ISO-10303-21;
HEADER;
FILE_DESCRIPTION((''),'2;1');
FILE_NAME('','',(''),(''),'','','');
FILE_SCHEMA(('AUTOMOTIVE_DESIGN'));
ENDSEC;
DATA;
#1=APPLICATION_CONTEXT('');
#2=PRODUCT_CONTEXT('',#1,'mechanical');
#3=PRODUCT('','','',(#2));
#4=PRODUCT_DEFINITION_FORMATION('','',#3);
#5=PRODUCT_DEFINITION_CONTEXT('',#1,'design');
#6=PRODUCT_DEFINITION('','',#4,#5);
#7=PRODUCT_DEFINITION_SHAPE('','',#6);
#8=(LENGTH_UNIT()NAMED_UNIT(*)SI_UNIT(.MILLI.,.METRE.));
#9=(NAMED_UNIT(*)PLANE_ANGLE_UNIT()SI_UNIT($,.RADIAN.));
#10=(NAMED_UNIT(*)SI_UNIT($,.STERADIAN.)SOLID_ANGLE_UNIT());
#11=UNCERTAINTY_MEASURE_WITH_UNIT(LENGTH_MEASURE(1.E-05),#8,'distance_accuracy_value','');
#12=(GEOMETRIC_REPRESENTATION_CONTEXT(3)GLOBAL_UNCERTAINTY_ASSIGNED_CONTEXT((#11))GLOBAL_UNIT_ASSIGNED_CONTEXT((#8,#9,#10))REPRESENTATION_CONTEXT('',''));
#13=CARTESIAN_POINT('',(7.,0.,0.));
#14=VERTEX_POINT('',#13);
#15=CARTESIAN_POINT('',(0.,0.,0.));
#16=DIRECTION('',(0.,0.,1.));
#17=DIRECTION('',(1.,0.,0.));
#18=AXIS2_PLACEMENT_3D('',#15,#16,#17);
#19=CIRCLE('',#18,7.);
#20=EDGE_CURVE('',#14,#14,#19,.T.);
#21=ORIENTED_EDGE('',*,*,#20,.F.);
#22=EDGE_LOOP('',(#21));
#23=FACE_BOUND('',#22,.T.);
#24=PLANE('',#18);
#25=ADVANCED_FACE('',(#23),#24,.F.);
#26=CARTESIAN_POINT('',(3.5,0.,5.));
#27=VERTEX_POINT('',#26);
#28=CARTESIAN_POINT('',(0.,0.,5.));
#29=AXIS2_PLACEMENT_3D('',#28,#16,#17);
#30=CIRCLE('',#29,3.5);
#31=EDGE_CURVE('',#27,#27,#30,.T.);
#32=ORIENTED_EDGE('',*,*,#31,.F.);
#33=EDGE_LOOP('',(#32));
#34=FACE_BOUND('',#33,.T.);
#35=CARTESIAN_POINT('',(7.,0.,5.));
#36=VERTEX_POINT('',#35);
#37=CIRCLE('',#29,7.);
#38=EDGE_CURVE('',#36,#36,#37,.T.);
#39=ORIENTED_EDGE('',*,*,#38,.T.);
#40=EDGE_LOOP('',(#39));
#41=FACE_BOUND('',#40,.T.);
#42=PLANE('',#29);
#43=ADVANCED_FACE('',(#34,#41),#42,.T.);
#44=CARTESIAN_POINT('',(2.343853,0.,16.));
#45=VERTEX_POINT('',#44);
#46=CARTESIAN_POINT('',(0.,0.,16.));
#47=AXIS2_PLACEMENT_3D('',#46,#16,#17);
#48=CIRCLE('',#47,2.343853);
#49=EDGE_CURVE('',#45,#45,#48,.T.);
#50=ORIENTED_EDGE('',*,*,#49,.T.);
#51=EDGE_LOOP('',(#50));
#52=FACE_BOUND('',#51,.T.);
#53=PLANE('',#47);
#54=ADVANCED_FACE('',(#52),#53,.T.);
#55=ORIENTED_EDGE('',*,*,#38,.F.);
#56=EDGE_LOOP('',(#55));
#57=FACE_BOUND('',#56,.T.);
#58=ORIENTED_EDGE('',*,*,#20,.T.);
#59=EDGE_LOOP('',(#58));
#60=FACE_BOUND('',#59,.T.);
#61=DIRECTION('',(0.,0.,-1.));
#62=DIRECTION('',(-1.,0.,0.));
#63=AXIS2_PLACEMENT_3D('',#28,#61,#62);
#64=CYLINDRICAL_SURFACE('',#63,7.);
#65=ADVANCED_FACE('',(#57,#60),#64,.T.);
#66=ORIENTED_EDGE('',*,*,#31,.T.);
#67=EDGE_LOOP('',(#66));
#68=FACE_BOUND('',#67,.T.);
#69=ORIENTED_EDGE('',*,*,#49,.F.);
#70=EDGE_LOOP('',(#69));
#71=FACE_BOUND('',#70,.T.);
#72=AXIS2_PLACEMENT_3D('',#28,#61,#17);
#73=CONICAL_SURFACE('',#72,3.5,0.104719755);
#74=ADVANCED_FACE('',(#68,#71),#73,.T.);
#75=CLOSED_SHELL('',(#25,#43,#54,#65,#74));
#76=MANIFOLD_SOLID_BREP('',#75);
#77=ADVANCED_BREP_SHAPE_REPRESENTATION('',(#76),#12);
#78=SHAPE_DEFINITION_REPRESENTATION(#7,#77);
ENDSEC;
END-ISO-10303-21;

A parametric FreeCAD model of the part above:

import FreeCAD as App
import Part
import Sketcher
Q = App.Units.Quantity

doc = App.newDocument("Part")
body = doc.addObject("PartDesign::Body", "Body")

sketch1 = doc.addObject("Sketcher::SketchObject", "Sketch")
body.addObject(sketch1)
sketch1.AttachmentSupport = (doc.XY_Plane, [""])
sketch1.MapMode = "FlatFace"
sketch1.addGeometry(Part.Circle(App.Vector(0, 0, 0), App.Vector(0, 0, 1), 7), False)
sketch1.addConstraint([
    Sketcher.Constraint("Coincident", 0, 3, -1, 1),
    Sketcher.Constraint("Diameter", 0, Q("14 mm")),
])
pad1 = doc.addObject("PartDesign::Pad", "Pad")
body.addObject(pad1)
pad1.Profile = sketch1
pad1.Length = 5

sketch2 = doc.addObject("Sketcher::SketchObject", "Sketch001")
body.addObject(sketch2)
sketch2.AttachmentSupport = (doc.XY_Plane, [""])
sketch2.MapMode = "FlatFace"
sketch2.AttachmentOffset = App.Placement(App.Vector(0, 0, 5), App.Rotation())
sketch2.addGeometry(Part.Circle(App.Vector(0, 0, 0), App.Vector(0, 0, 1), 3.5), False)
sketch2.addConstraint([
    Sketcher.Constraint("Coincident", 0, 3, -1, 1),
    Sketcher.Constraint("Diameter", 0, Q("7 mm")),
])
pad2 = doc.addObject("PartDesign::Pad", "Pad001")
body.addObject(pad2)
pad2.Profile = sketch2
pad2.Length = 11
pad2.TaperAngle = -6

doc.recompute()
